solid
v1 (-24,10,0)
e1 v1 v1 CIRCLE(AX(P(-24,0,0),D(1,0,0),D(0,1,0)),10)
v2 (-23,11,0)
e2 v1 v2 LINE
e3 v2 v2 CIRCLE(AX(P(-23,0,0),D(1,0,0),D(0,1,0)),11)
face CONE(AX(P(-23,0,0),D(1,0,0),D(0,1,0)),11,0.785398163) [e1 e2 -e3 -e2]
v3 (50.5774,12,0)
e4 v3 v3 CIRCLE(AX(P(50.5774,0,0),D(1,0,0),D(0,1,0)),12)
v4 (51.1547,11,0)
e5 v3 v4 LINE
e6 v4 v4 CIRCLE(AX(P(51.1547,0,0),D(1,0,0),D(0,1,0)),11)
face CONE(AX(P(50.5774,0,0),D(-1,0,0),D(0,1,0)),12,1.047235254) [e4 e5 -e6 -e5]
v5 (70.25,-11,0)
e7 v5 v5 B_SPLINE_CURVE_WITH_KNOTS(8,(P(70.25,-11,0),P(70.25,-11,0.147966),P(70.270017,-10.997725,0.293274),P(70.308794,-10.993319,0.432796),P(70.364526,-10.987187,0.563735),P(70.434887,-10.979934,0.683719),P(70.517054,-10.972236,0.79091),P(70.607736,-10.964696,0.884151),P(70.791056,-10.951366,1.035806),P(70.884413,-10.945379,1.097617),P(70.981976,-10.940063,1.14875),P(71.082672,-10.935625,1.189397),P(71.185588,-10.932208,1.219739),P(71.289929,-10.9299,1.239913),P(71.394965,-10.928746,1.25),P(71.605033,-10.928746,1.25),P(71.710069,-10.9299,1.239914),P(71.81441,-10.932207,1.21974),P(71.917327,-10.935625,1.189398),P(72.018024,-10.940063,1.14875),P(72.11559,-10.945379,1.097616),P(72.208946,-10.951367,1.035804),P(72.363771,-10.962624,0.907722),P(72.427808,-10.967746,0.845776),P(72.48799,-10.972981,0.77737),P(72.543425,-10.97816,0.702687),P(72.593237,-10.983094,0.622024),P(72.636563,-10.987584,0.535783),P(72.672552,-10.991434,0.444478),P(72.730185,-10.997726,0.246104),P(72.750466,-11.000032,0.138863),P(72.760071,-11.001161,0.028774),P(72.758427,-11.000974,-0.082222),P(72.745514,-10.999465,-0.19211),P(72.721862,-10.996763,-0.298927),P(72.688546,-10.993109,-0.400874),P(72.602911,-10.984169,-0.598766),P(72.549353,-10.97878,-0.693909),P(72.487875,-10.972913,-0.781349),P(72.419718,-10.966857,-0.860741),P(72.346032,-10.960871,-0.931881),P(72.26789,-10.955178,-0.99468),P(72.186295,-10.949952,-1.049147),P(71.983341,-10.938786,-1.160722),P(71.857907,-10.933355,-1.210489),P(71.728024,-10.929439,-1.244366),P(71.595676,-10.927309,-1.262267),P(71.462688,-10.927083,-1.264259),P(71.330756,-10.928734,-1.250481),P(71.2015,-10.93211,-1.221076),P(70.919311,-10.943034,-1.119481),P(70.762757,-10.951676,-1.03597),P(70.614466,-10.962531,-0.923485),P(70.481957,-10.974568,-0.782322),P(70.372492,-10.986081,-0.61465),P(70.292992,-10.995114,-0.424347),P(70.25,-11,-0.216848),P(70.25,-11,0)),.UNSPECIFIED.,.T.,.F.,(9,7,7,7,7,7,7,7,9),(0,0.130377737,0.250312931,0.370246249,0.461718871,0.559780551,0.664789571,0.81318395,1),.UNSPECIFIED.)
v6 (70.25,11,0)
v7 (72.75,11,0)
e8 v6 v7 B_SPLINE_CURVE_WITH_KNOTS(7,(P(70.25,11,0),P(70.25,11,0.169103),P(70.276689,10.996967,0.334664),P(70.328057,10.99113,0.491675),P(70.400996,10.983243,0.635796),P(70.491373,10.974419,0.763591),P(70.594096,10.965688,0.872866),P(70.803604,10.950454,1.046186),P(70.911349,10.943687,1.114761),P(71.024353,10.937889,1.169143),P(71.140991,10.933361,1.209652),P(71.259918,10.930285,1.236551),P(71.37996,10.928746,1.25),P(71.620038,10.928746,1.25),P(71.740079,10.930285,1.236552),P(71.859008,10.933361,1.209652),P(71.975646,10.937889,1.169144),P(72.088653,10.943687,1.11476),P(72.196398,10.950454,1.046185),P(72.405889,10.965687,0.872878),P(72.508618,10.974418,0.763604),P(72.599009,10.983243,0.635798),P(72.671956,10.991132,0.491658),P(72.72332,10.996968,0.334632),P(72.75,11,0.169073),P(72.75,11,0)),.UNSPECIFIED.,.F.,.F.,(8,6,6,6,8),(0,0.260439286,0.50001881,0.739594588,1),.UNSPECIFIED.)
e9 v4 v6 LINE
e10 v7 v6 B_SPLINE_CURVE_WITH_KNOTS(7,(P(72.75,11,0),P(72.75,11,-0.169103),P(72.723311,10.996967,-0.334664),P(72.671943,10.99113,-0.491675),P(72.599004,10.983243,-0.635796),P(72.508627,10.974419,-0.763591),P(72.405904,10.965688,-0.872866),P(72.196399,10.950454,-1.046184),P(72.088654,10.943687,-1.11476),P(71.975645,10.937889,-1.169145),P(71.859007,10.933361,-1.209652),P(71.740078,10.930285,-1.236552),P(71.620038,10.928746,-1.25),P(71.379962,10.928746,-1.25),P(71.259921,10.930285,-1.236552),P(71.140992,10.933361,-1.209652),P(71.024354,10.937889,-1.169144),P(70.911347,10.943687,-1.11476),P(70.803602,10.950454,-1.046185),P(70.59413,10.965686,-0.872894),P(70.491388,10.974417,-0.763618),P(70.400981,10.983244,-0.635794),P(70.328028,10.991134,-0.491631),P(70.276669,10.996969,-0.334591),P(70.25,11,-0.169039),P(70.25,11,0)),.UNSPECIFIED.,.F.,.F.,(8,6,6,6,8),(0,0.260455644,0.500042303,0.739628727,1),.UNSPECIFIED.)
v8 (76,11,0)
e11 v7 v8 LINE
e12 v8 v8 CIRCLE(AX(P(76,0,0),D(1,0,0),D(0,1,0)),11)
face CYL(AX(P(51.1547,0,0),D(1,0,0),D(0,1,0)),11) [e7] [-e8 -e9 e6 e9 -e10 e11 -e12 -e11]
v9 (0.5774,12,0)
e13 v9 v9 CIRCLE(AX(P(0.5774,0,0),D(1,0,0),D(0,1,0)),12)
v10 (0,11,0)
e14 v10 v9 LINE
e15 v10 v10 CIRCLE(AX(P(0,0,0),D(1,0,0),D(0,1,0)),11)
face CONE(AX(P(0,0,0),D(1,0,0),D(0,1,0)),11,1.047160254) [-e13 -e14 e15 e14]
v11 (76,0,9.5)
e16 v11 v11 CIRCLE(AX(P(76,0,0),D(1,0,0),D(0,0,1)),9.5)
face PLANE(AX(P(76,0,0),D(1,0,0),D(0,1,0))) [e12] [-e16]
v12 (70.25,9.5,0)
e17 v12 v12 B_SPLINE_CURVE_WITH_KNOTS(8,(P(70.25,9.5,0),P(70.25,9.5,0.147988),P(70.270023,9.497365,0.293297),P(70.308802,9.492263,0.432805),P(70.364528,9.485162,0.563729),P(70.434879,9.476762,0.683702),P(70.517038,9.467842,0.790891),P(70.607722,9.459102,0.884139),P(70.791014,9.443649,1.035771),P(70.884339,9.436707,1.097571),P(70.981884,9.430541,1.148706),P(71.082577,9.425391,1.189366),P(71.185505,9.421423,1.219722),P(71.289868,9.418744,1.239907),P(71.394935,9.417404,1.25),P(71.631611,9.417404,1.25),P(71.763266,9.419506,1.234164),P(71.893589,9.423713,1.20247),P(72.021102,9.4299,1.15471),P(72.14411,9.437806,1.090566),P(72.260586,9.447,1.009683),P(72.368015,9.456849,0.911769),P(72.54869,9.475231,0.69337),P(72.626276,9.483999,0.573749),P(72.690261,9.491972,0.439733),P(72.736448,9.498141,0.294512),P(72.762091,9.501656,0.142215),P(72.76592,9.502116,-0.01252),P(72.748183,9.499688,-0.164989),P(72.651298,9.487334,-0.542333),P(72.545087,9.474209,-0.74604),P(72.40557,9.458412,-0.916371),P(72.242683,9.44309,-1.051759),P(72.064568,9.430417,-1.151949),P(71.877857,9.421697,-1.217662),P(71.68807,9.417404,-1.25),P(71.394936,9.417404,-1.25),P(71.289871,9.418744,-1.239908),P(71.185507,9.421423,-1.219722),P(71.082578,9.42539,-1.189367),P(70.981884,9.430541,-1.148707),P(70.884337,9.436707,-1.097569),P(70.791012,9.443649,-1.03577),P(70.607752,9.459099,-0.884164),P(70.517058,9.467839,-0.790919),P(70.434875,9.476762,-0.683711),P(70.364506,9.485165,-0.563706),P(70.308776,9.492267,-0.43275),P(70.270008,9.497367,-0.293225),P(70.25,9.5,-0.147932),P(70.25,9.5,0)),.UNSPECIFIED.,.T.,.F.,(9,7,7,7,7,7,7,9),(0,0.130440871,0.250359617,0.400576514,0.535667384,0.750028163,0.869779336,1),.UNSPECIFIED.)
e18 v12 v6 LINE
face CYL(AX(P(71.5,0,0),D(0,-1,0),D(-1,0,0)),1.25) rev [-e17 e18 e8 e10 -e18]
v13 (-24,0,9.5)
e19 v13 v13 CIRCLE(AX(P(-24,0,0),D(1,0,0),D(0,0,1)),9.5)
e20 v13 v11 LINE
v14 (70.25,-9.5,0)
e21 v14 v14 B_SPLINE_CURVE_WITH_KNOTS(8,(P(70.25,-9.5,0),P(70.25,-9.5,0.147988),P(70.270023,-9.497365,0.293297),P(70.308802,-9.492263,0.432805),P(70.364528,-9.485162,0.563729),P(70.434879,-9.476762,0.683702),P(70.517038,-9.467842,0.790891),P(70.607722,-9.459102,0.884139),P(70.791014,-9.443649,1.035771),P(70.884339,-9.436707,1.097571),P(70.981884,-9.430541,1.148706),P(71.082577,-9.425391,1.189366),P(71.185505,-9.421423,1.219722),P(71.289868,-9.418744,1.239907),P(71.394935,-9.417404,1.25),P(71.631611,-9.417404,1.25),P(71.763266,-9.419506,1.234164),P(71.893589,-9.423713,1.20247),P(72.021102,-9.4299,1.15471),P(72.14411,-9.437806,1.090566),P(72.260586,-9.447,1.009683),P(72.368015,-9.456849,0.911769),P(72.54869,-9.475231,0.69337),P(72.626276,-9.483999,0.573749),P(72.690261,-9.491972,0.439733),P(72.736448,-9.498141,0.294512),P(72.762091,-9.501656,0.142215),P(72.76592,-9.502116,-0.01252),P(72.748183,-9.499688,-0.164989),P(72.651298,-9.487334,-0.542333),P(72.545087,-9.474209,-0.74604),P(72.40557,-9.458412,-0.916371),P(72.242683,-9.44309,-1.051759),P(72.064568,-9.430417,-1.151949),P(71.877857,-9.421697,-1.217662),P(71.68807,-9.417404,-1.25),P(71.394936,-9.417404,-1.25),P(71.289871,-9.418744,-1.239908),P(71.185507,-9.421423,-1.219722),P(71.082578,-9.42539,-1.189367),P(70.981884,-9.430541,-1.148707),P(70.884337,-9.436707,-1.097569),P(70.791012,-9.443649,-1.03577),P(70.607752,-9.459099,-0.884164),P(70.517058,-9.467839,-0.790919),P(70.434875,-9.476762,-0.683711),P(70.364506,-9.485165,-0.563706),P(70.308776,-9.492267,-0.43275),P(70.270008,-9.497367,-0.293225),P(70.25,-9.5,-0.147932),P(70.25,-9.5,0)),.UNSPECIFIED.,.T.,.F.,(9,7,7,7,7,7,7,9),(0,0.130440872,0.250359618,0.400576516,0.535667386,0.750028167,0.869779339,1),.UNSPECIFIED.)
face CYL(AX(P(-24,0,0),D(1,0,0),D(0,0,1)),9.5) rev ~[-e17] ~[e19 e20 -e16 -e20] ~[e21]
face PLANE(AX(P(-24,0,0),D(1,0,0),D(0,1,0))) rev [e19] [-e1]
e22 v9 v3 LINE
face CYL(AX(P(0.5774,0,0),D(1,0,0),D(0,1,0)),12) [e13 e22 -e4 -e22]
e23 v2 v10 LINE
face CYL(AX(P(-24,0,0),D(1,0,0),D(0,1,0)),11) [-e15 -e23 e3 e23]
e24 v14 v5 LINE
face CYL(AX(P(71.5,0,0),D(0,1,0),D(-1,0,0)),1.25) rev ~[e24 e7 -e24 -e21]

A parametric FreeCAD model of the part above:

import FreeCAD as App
import Part
import Sketcher

V = App.Vector
Q = App.Units.Quantity


def edges_at(feature, points):
    """Names of the edges that pass closest to the given points."""
    edges = feature.Shape.Edges
    near = lambda p: min(range(len(edges)), key=lambda i: edges[i].distToShape(Part.Vertex(*p))[0])
    return sorted({f"Edge{near(p) + 1}" for p in points})

doc = App.newDocument("Part")
body = doc.addObject("PartDesign::Body", "Body")

# Sketch on XY plane
sketch1 = body.newObject("Sketcher::SketchObject", "Sketch")
sketch1.AttachmentSupport = (doc.getObject("XY_Plane"), [""])
sketch1.MapMode = "FlatFace"
sketch1.addGeometry([
    Part.LineSegment(V(-24, 11, 0), V(-24, 0, 0)),  # 0
    Part.LineSegment(V(-24, 0, 0), V(0, 0, 0)),  # 1
    Part.LineSegment(V(0, 0, 0), V(0, 9, 0)),  # 2
    Part.LineSegment(V(0, 9, 0), V(68, 9, 0)),  # 3
    Part.LineSegment(V(68, 9, 0), V(68, 0, 0)),  # 4
    Part.LineSegment(V(68, 0, 0), V(76, 0, 0)),  # 5
    Part.LineSegment(V(76, 0, 0), V(76, 11, 0)),  # 6
    Part.LineSegment(V(76, 11, 0), V(51.1547, 11, 0)),  # 7
    Part.LineSegment(V(51.1547, 11, 0), V(50.5774, 12, 0)),  # 8
    Part.LineSegment(V(50.5774, 12, 0), V(0.5774, 12, 0)),  # 9
    Part.LineSegment(V(0.5774, 12, 0), V(0, 11, 0)),  # 10
    Part.LineSegment(V(0, 11, 0), V(-24, 11, 0)),  # 11
], False)
sketch1.addConstraint([
    Sketcher.Constraint("Coincident", 0, 2, 1, 1),
    Sketcher.Constraint("Coincident", 1, 2, 2, 1),
    Sketcher.Constraint("Coincident", 2, 2, 3, 1),
    Sketcher.Constraint("Coincident", 3, 2, 4, 1),
    Sketcher.Constraint("Coincident", 4, 2, 5, 1),
    Sketcher.Constraint("Coincident", 5, 2, 6, 1),
    Sketcher.Constraint("Coincident", 6, 2, 7, 1),
    Sketcher.Constraint("Coincident", 7, 2, 8, 1),
    Sketcher.Constraint("Coincident", 8, 2, 9, 1),
    Sketcher.Constraint("Coincident", 9, 2, 10, 1),
    Sketcher.Constraint("Coincident", 10, 2, 11, 1),
    Sketcher.Constraint("Coincident", 11, 2, 0, 1),
    Sketcher.Constraint("Vertical", 0),
    Sketcher.Constraint("Horizontal", 1),
    Sketcher.Constraint("Vertical", 2),
    Sketcher.Constraint("Horizontal", 3),
    Sketcher.Constraint("Vertical", 4),
    Sketcher.Constraint("Horizontal", 5),
    Sketcher.Constraint("Vertical", 6),
    Sketcher.Constraint("Horizontal", 7),
    Sketcher.Constraint("Horizontal", 9),
    Sketcher.Constraint("Horizontal", 11),
    Sketcher.Constraint("Coincident", 1, 2, -1, 1),
    Sketcher.Constraint("PointOnObject", 4, 2, -1),
    Sketcher.Constraint("PointOnObject", 10, 2, -2),
    Sketcher.Constraint("Horizontal", 7, 2, 10, 2),
    Sketcher.Constraint("Equal", 8, 10),
    Sketcher.Constraint("DistanceX", 1, 1, 1, 2, Q("24 mm")),
    Sketcher.Constraint("DistanceX", 5, 1, 5, 2, Q("8 mm")),
    Sketcher.Constraint("DistanceX", 9, 2, 9, 1, Q("50 mm")),
    Sketcher.Constraint("DistanceY", 0, 2, 0, 1, Q("11 mm")),
    Sketcher.Constraint("DistanceY", 2, 1, 2, 2, Q("9 mm")),
    Sketcher.Constraint("DistanceX", 0, 2, 5, 2, Q("100 mm")),
    Sketcher.Constraint("DistanceY", 7, 2, 8, 2, Q("1 mm")),
    Sketcher.Constraint("DistanceX", 7, 2, 7, 1, Q("24.8453 mm")),
])
revolution = body.newObject("PartDesign::Revolution", "Revolution")
revolution.Profile = sketch1
revolution.ReferenceAxis = (sketch1, ["H_Axis"])
revolution.Angle = 360

# Sketch on YZ plane
sketch2 = body.newObject("Sketcher::SketchObject", "Sketch001")
sketch2.AttachmentSupport = (doc.getObject("YZ_Plane"), [""])
sketch2.MapMode = "FlatFace"
sketch2.AttachmentOffset = App.Placement(V(0, 0, -24), App.Rotation())
sketch2.addGeometry(Part.Circle(V(0, 0, 0), V(0, 0, 1), 9.5), False)
sketch2.addConstraint([
    Sketcher.Constraint("Coincident", 0, 3, -1, 1),
    Sketcher.Constraint("Diameter", 0, Q("19 mm")),
])
doc.recompute()
hole = body.newObject("PartDesign::Hole", "Hole")
hole.Profile = sketch2
hole.ThreadType = "None"
hole.Diameter = 19
hole.DepthType = "ThroughAll"
hole.Reversed = True
doc.recompute()

chamfer = body.newObject("PartDesign::Chamfer", "Chamfer")
chamfer.Base = (hole, edges_at(hole, [(-24, -11, 0)]))
chamfer.Size = 1

# Sketch on XZ plane
sketch3 = body.newObject("Sketcher::SketchObject", "Sketch002")
sketch3.AttachmentSupport = (doc.getObject("XZ_Plane"), [""])
sketch3.MapMode = "FlatFace"
sketch3.addGeometry(Part.Circle(V(71.5, 0, 0), V(0, 0, 1), 1.25), False)
sketch3.addConstraint([
    Sketcher.Constraint("PointOnObject", 0, 3, -1),
    Sketcher.Constraint("Diameter", 0, Q("2.5 mm")),
    Sketcher.Constraint("DistanceX", -1, 1, 0, 3, Q("71.5 mm")),
])
pocket1 = body.newObject("PartDesign::Pocket", "Pocket")
pocket1.Profile = sketch3
pocket1.Type = "ThroughAll"
pocket1.Midplane = True

doc.recompute()
